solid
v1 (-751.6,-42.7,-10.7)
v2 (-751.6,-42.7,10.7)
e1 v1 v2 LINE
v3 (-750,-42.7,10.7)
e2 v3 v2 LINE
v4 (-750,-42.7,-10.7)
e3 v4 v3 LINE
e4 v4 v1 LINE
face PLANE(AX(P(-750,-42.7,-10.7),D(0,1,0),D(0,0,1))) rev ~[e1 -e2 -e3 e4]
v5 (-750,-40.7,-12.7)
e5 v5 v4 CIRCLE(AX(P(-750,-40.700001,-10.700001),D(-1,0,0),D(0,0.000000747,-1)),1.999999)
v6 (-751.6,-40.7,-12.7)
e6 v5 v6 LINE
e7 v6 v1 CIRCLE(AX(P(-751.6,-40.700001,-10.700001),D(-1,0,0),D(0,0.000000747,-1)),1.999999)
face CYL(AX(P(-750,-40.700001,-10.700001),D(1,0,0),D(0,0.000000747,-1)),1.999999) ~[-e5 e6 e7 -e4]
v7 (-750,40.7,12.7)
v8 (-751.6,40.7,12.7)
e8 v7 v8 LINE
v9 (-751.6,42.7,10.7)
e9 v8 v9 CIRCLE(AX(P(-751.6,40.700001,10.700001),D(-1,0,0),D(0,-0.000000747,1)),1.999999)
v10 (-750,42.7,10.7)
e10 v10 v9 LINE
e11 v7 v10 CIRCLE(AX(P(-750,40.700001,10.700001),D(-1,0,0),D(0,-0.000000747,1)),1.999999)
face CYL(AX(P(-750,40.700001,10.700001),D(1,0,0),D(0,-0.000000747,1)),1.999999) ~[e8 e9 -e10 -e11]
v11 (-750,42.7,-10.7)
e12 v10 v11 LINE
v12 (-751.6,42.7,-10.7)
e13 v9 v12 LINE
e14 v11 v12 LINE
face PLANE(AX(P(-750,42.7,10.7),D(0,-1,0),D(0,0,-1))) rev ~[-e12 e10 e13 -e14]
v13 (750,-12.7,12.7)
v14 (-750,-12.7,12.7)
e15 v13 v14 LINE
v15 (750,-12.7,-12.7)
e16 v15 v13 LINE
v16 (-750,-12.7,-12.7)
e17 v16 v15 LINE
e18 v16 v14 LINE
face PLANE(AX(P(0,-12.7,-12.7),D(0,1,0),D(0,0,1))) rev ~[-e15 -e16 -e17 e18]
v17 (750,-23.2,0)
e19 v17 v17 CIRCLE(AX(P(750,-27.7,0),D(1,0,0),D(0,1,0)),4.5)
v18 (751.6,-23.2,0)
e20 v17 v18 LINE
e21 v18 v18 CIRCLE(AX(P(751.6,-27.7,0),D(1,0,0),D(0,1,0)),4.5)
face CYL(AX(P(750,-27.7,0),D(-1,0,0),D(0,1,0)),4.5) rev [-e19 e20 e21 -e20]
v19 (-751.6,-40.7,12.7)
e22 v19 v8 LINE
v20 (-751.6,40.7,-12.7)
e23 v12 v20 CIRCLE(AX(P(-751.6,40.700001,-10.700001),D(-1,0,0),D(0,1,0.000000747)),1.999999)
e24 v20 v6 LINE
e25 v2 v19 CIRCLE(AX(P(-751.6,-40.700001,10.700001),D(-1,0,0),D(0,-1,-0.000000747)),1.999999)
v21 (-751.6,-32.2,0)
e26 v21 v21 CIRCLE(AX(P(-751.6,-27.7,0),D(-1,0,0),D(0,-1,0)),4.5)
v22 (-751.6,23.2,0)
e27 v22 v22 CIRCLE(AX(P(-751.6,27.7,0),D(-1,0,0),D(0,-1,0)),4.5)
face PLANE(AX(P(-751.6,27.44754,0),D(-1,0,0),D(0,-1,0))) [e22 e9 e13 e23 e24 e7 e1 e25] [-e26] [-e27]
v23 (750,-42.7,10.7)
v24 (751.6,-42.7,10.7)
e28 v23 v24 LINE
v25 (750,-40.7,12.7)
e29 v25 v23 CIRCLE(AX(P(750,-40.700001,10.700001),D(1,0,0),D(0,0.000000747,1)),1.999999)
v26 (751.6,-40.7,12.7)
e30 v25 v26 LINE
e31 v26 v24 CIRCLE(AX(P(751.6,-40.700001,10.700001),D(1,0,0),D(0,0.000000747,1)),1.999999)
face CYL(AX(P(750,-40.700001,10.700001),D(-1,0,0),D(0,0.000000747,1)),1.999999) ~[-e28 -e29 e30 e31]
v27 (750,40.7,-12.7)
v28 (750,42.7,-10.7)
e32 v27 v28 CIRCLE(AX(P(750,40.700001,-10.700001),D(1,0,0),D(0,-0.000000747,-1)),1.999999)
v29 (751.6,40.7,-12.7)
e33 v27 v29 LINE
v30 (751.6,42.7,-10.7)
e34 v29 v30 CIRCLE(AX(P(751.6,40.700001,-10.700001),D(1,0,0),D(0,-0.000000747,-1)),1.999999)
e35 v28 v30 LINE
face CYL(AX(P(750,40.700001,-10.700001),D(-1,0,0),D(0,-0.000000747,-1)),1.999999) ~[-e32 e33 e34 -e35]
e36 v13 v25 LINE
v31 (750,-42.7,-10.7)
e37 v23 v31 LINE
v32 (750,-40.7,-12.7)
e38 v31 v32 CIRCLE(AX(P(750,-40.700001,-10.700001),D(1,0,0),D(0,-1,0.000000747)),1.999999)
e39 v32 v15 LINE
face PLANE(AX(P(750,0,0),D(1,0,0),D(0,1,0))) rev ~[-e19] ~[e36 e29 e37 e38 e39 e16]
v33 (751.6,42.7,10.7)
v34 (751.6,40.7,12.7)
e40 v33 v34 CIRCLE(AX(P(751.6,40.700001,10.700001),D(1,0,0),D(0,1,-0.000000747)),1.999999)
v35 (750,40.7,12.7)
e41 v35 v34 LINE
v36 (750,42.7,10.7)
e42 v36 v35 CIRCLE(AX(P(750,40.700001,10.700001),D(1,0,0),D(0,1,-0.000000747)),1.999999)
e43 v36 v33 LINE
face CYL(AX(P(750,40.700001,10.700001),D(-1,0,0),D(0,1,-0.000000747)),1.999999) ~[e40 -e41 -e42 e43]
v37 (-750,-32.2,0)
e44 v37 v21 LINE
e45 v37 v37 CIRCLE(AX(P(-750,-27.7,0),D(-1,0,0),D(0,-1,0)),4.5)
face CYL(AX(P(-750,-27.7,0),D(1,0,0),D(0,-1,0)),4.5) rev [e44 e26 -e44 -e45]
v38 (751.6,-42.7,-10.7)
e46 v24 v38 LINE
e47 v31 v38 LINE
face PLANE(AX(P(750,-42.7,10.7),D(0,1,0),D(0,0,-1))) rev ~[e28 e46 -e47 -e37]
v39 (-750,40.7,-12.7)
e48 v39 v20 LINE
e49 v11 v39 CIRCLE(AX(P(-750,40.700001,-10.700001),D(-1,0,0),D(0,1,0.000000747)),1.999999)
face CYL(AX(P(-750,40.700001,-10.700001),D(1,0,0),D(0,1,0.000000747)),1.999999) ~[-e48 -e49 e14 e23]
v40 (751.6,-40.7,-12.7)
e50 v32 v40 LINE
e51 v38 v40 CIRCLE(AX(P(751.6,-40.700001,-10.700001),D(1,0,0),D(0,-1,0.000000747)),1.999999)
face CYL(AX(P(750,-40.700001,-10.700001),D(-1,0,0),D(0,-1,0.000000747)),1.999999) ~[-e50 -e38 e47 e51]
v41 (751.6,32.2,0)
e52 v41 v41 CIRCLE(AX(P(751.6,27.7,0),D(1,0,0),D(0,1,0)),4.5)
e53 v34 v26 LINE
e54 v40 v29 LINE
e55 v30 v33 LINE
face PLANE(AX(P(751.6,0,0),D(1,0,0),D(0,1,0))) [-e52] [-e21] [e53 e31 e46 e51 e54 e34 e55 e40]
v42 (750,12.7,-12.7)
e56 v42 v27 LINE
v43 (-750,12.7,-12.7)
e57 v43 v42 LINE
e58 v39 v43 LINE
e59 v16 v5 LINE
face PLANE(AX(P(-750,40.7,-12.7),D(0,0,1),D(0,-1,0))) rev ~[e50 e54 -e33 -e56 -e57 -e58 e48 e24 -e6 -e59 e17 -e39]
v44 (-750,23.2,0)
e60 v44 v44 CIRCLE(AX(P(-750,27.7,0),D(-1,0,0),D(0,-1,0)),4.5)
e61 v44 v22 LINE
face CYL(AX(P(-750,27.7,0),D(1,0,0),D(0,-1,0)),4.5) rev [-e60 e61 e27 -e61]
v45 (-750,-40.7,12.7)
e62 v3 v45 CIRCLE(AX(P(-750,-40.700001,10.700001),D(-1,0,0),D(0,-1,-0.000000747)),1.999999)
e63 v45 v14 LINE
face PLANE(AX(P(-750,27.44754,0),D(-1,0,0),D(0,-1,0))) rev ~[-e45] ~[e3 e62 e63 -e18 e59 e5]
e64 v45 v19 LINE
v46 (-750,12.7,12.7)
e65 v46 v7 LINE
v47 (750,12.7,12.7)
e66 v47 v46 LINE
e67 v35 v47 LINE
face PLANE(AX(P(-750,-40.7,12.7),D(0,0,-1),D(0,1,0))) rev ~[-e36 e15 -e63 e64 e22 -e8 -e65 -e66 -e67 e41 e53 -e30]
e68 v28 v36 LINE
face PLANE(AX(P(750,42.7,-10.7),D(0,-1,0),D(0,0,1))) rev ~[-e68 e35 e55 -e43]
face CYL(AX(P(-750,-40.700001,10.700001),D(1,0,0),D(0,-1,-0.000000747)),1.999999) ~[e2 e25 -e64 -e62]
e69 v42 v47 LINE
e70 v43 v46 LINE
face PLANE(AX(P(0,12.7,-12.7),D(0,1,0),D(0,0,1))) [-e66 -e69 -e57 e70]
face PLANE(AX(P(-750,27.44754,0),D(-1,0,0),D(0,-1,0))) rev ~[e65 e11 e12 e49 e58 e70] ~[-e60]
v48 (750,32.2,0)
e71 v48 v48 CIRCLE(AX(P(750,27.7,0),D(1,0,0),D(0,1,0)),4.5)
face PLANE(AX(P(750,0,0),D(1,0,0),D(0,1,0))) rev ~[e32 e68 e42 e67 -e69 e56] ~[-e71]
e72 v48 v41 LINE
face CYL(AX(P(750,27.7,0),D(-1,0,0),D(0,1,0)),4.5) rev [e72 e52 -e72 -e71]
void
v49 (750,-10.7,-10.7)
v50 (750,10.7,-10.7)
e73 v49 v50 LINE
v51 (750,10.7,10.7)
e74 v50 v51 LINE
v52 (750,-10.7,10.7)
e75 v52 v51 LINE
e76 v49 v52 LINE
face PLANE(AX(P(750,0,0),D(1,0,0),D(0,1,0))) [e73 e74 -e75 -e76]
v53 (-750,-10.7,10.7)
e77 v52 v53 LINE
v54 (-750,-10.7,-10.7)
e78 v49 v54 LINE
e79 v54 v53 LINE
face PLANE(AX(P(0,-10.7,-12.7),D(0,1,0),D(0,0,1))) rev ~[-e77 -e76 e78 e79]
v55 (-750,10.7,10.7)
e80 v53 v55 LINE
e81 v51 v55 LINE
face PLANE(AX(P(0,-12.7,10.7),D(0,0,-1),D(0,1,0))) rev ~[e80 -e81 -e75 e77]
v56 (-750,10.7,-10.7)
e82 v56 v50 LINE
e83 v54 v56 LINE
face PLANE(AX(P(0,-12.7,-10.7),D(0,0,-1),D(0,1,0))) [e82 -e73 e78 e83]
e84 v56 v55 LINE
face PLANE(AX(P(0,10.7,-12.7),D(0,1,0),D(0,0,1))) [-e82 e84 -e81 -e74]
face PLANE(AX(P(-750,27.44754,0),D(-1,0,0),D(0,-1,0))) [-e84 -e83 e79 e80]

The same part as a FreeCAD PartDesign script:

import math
import FreeCAD as App
import Part
import Sketcher
from FreeCAD import Vector
Q = App.Units.Quantity


def faces_at(feature, points):
    """Names of the faces that lie closest to the given points."""
    faces = feature.Shape.Faces
    near = lambda p: min(range(len(faces)), key=lambda i: faces[i].distToShape(Part.Vertex(*p))[0])
    return sorted({f"Face{near(p) + 1}" for p in points})

doc = App.newDocument("Part")
body = doc.addObject("PartDesign::Body", "Body")

# Sketch on YZ plane
sketch1 = doc.addObject("Sketcher::SketchObject", "Sketch")
body.addObject(sketch1)
sketch1.AttachmentSupport = (doc.YZ_Plane, [""])
sketch1.MapMode = "FlatFace"
sketch1.addGeometry([
    Part.LineSegment(Vector(-13, 13, 0), Vector(-13, -13, 0)),
    Part.LineSegment(Vector(-13, -13, 0), Vector(13, -13, 0)),
    Part.LineSegment(Vector(13, -13, 0), Vector(13, 13, 0)),
    Part.LineSegment(Vector(13, 13, 0), Vector(-13, 13, 0)),
], False)
sketch1.addConstraint([
    Sketcher.Constraint("Coincident", 0, 2, 1, 1),
    Sketcher.Constraint("Coincident", 1, 2, 2, 1),
    Sketcher.Constraint("Coincident", 2, 2, 3, 1),
    Sketcher.Constraint("Coincident", 3, 2, 0, 1),
    Sketcher.Constraint("Vertical", 0),
    Sketcher.Constraint("Horizontal", 1),
    Sketcher.Constraint("Vertical", 2),
    Sketcher.Constraint("Horizontal", 3),
    Sketcher.Constraint("Symmetric", 0, 2, 2, 2, -1, 1),
    Sketcher.Constraint("Equal", 3, 0),
    Sketcher.Constraint("DistanceX", 1, 1, 1, 2, Q("25.4 mm")),
])
pad1 = doc.addObject("PartDesign::Pad", "Pad")
body.addObject(pad1)
pad1.Profile = sketch1
pad1.Length = 1500
pad1.Midplane = True
doc.recompute()

thickness = doc.addObject("PartDesign::Thickness", "Thickness")
body.addObject(thickness)
thickness.Base = (pad1, faces_at(pad1, [(750, 0, 0), (-750, 0, 0)]))
thickness.Value = 2
thickness.Reversed = True
thickness.Join = "Arc"

# Sketch on YZ plane
sketch2 = doc.addObject("Sketcher::SketchObject", "Sketch001")
body.addObject(sketch2)
sketch2.AttachmentSupport = (doc.YZ_Plane, [""])
sketch2.MapMode = "FlatFace"
sketch2.AttachmentOffset = App.Placement(Vector(0, 0, 750), App.Rotation())
sketch2.addGeometry([
    Part.ArcOfCircle(Part.Circle(Vector(40.7, 10.7, 0), Vector(0, 0, 1), 2), math.radians(0), math.radians(90)),  # 0
    Part.LineSegment(Vector(40.7, 12.7, 0), Vector(-40.7, 12.7, 0)),  # 1
    Part.ArcOfCircle(Part.Circle(Vector(-40.7, 10.7, 0), Vector(0, 0, 1), 2), math.radians(90), math.radians(180)),  # 2
    Part.LineSegment(Vector(-42.7, 10.7, 0), Vector(-42.7, -10.7, 0)),  # 3
    Part.ArcOfCircle(Part.Circle(Vector(-40.7, -10.7, 0), Vector(0, 0, 1), 2), math.radians(180), math.radians(270)),  # 4
    Part.LineSegment(Vector(-40.7, -12.7, 0), Vector(40.7, -12.7, 0)),  # 5
    Part.ArcOfCircle(Part.Circle(Vector(40.7, -10.7, 0), Vector(0, 0, 1), 2), math.radians(-90), math.radians(0)),  # 6
    Part.LineSegment(Vector(42.7, -10.7, 0), Vector(42.7, 10.7, 0)),  # 7
    Part.Circle(Vector(-27.7, 0, 0), Vector(0, 0, 1), 4.5),  # 8
    Part.Circle(Vector(27.7, 0, 0), Vector(0, 0, 1), 4.5),  # 9
], False)
sketch2.addConstraint([
    Sketcher.Constraint("Tangent", 0, 2, 1, 1),
    Sketcher.Constraint("Tangent", 1, 2, 2, 1),
    Sketcher.Constraint("Tangent", 2, 2, 3, 1),
    Sketcher.Constraint("Tangent", 3, 2, 4, 1),
    Sketcher.Constraint("Tangent", 4, 2, 5, 1),
    Sketcher.Constraint("Tangent", 5, 2, 6, 1),
    Sketcher.Constraint("Tangent", 6, 2, 7, 1),
    Sketcher.Constraint("Tangent", 7, 2, 0, 1),
    Sketcher.Constraint("Horizontal", 1),
    Sketcher.Constraint("Vertical", 3),
    Sketcher.Constraint("Horizontal", 5),
    Sketcher.Constraint("Vertical", 7),
    Sketcher.Constraint("Equal", 0, 2),
    Sketcher.Constraint("Equal", 2, 4),
    Sketcher.Constraint("Equal", 4, 6),
    Sketcher.Constraint("Equal", 8, 9),
    Sketcher.Constraint("Symmetric", 0, 3, 4, 3, -1, 1),
    Sketcher.Constraint("Symmetric", 8, 3, 9, 3, -1, 1),
    Sketcher.Constraint("PointOnObject", 8, 3, -1),
    Sketcher.Constraint("Diameter", 8, Q("9 mm")),
    Sketcher.Constraint("Radius", 0, Q("1.999999 mm")),
    Sketcher.Constraint("DistanceX", 1, 2, 1, 1, Q("81.4 mm")),
    Sketcher.Constraint("DistanceY", 3, 2, 3, 1, Q("21.4 mm")),
    Sketcher.Constraint("DistanceX", 2, 3, 8, 3, Q("13.000001 mm")),
])
pad2 = doc.addObject("PartDesign::Pad", "Pad001")
body.addObject(pad2)
pad2.Profile = sketch2
pad2.Length = 1.6

# Sketch on YZ plane
sketch3 = doc.addObject("Sketcher::SketchObject", "Sketch002")
body.addObject(sketch3)
sketch3.AttachmentSupport = (doc.YZ_Plane, [""])
sketch3.MapMode = "FlatFace"
sketch3.AttachmentOffset = App.Placement(Vector(0, 0, -750), App.Rotation())
sketch3.addGeometry([
    Part.ArcOfCircle(Part.Circle(Vector(40.7, 10.7, 0), Vector(0, 0, 1), 2), math.radians(0), math.radians(90)),  # 0
    Part.LineSegment(Vector(42.7, 10.7, 0), Vector(42.7, -10.7, 0)),  # 1
    Part.ArcOfCircle(Part.Circle(Vector(40.7, -10.7, 0), Vector(0, 0, 1), 2), math.radians(-90), math.radians(0)),  # 2
    Part.LineSegment(Vector(40.7, -12.7, 0), Vector(-40.7, -12.7, 0)),  # 3
    Part.ArcOfCircle(Part.Circle(Vector(-40.7, -10.7, 0), Vector(0, 0, 1), 2), math.radians(180), math.radians(270)),  # 4
    Part.LineSegment(Vector(-42.7, -10.7, 0), Vector(-42.7, 10.7, 0)),  # 5
    Part.ArcOfCircle(Part.Circle(Vector(-40.7, 10.7, 0), Vector(0, 0, 1), 2), math.radians(90), math.radians(180)),  # 6
    Part.LineSegment(Vector(-40.7, 12.7, 0), Vector(40.7, 12.7, 0)),  # 7
    Part.Circle(Vector(27.7, 0, 0), Vector(0, 0, 1), 4.5),  # 8
    Part.Circle(Vector(-27.7, 0, 0), Vector(0, 0, 1), 4.5),  # 9
], False)
sketch3.addConstraint([
    Sketcher.Constraint("Tangent", 0, 1, 1, 1),
    Sketcher.Constraint("Tangent", 1, 2, 2, 2),
    Sketcher.Constraint("Tangent", 2, 1, 3, 1),
    Sketcher.Constraint("Tangent", 3, 2, 4, 2),
    Sketcher.Constraint("Tangent", 4, 1, 5, 1),
    Sketcher.Constraint("Tangent", 5, 2, 6, 2),
    Sketcher.Constraint("Tangent", 6, 1, 7, 1),
    Sketcher.Constraint("Tangent", 7, 2, 0, 2),
    Sketcher.Constraint("Vertical", 1),
    Sketcher.Constraint("Horizontal", 3),
    Sketcher.Constraint("Vertical", 5),
    Sketcher.Constraint("Horizontal", 7),
    Sketcher.Constraint("Equal", 0, 2),
    Sketcher.Constraint("Equal", 2, 4),
    Sketcher.Constraint("Equal", 4, 6),
    Sketcher.Constraint("Equal", 8, 9),
    Sketcher.Constraint("Symmetric", 0, 3, 4, 3, -1, 1),
    Sketcher.Constraint("Symmetric", 8, 3, 9, 3, -1, 1),
    Sketcher.Constraint("PointOnObject", 8, 3, -1),
    Sketcher.Constraint("Diameter", 8, Q("9 mm")),
    Sketcher.Constraint("Radius", 0, Q("1.999999 mm")),
    Sketcher.Constraint("DistanceX", 3, 2, 3, 1, Q("81.4 mm")),
    Sketcher.Constraint("DistanceY", 1, 2, 1, 1, Q("21.4 mm")),
    Sketcher.Constraint("DistanceX", 8, 3, 0, 3, Q("13.000001 mm")),
])
pad3 = doc.addObject("PartDesign::Pad", "Pad002")
body.addObject(pad3)
pad3.Profile = sketch3
pad3.Length = 1.6
pad3.Reversed = True

doc.recompute()
